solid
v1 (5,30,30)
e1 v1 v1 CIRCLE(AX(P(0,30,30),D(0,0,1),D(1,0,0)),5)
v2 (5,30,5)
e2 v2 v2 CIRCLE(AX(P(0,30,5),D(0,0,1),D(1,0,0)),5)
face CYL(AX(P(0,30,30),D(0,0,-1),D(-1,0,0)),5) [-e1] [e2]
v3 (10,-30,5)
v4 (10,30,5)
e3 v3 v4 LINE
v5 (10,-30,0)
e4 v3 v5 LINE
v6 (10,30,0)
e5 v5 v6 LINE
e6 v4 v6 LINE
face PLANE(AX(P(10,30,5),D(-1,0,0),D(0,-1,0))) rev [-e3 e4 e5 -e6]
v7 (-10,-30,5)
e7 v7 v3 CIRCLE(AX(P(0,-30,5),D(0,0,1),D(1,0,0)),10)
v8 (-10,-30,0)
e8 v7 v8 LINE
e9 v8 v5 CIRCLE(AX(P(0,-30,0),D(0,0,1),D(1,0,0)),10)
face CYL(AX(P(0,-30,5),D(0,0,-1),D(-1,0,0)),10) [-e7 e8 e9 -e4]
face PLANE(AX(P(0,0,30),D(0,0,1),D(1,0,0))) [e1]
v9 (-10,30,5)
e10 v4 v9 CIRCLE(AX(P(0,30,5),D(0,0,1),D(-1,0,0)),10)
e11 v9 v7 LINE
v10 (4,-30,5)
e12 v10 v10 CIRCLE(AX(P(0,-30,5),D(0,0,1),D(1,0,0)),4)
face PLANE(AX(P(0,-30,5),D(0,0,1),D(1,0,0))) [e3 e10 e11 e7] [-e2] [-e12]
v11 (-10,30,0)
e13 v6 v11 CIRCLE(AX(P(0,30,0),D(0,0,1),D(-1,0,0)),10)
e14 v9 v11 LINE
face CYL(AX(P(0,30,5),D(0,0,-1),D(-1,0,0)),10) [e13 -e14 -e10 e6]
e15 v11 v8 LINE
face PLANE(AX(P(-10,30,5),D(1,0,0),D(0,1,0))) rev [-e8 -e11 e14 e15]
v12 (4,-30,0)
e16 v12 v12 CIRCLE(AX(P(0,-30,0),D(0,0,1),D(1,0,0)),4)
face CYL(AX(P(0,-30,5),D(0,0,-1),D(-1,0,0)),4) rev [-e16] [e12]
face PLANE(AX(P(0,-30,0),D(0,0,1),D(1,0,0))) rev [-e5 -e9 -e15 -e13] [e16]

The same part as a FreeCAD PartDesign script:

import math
import FreeCAD as App
import Part
import Sketcher
from FreeCAD import Vector

doc = App.newDocument("Part")
body = doc.addObject("PartDesign::Body", "Body")

# Sketch on XY plane
sketch1 = body.newObject("Sketcher::SketchObject", "Sketch")
sketch1.AttachmentSupport = (doc.getObject("XY_Plane"), [""])
sketch1.MapMode = "FlatFace"
sketch1.addGeometry([
    Part.LineSegment(Vector(10, -30, 0), Vector(10, 30, 0)),  # 0
    Part.ArcOfCircle(Part.Circle(Vector(0, 30, 0), Vector(0, 0, 1), 10), math.radians(0), math.radians(180)),  # 1
    Part.LineSegment(Vector(-10, 30, 0), Vector(-10, -30, 0)),  # 2
    Part.ArcOfCircle(Part.Circle(Vector(0, -30, 0), Vector(0, 0, 1), 10), math.radians(180), math.radians(360)),  # 3
    Part.Circle(Vector(0, -30, 0), Vector(0, 0, 1), 4),  # 4
    Part.Circle(Vector(0, 30, 0), Vector(0, 0, 1), 5),  # 5
], False)
sketch1.addConstraint([
    Sketcher.Constraint("Tangent", 0, 2, 1, 1),
    Sketcher.Constraint("Tangent", 1, 2, 2, 1),
    Sketcher.Constraint("Tangent", 2, 2, 3, 1),
    Sketcher.Constraint("Tangent", 3, 2, 0, 1),
    Sketcher.Constraint("Vertical", 0),
    Sketcher.Constraint("Vertical", 2),
    Sketcher.Constraint("Coincident", 4, 3, 3, 3),
    Sketcher.Constraint("Coincident", 5, 3, 1, 3),
    Sketcher.Constraint("Symmetric", 1, 3, 3, 3, -1, 1),
    Sketcher.Constraint("Diameter", 4, 8.0),
    Sketcher.Constraint("Diameter", 5, 10.0),
    Sketcher.Constraint("Radius", 1, 10.0),
    Sketcher.Constraint("DistanceY", 0, 1, 0, 2, 60.0),
])
pad1 = body.newObject("PartDesign::Pad", "Pad")
pad1.Profile = sketch1
pad1.Length = 5

# Sketch on XY plane
sketch2 = body.newObject("Sketcher::SketchObject", "Sketch001")
sketch2.AttachmentSupport = (doc.getObject("XY_Plane"), [""])
sketch2.MapMode = "FlatFace"
sketch2.addGeometry(Part.Circle(Vector(0, 30, 0), Vector(0, 0, 1), 5), False)
sketch2.addConstraint([
    Sketcher.Constraint("PointOnObject", 0, 3, -2),
    Sketcher.Constraint("Diameter", 0, 10.0),
    Sketcher.Constraint("DistanceY", -1, 1, 0, 3, 30.0),
])
pad2 = body.newObject("PartDesign::Pad", "Pad001")
pad2.Profile = sketch2
pad2.Length = 30

doc.recompute()
